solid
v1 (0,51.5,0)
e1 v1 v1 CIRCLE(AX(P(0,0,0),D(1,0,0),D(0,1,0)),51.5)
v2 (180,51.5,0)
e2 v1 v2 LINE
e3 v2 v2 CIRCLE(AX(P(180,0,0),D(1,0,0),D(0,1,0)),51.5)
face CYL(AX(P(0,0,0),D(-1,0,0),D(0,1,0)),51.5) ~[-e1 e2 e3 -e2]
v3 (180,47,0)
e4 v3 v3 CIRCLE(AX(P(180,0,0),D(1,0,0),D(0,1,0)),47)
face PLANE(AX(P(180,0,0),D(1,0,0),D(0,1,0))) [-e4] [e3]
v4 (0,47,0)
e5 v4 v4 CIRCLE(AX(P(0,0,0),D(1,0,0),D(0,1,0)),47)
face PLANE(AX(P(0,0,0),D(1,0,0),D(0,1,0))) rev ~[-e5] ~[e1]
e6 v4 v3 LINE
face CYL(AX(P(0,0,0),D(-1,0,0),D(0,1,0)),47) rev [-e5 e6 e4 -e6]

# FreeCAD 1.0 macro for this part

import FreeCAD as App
import Part
import Sketcher

V = App.Vector
Q = App.Units.Quantity

doc = App.newDocument("Part")
params = doc.addObject("Spreadsheet::Sheet", "Params")
for row, (alias, value) in enumerate([
    ("sketch1_diameter", "103 mm"),
    ("sketch1_diameter2", "94 mm"),
    ("pad1_length", "180 mm"),
], start=1):
    params.set(f"A{row}", alias)
    params.set(f"B{row}", "=" + value)
    params.setAlias(f"B{row}", alias)

body = doc.addObject("PartDesign::Body", "Body")

sketch1 = body.newObject("Sketcher::SketchObject", "Sketch")
sketch1.AttachmentSupport = (doc.getObject("YZ_Plane"), [""])
sketch1.MapMode = "FlatFace"
sketch1.addGeometry(Part.Circle(V(0, 0, 0), V(0, 0, 1), 52), False)
sketch1.addGeometry(Part.Circle(V(0, 0, 0), V(0, 0, 1), 47), False)
sketch1.addConstraint(Sketcher.Constraint("Coincident", 0, 3, -1, 1))
sketch1.addConstraint(Sketcher.Constraint("Coincident", 1, 3, -1, 1))
sketch1.addConstraint(Sketcher.Constraint("Diameter", 0, Q("103 mm")))
sketch1.addConstraint(Sketcher.Constraint("Diameter", 1, Q("94 mm")))
sketch1.setExpression("Constraints[2]", "Params.sketch1_diameter")
sketch1.setExpression("Constraints[3]", "Params.sketch1_diameter2")
pad1 = body.newObject("PartDesign::Pad", "Pad")
pad1.Profile = sketch1
pad1.setExpression("Length", "Params.pad1_length")

doc.recompute()
